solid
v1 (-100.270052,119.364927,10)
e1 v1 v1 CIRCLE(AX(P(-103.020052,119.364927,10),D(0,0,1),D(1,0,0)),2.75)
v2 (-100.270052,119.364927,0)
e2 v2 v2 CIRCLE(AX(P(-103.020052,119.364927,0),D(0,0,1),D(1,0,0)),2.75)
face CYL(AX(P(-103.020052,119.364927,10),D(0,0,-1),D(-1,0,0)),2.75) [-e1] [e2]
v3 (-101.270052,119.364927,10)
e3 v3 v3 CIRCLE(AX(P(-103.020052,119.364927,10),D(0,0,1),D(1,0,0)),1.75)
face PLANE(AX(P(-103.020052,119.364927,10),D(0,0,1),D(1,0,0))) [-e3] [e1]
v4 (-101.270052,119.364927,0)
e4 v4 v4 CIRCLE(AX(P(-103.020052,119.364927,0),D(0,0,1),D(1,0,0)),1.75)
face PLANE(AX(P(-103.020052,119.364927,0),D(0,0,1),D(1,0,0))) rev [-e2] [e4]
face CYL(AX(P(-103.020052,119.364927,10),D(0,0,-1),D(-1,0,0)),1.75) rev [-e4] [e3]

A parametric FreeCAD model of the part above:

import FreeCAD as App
import Part
import Sketcher
Q = App.Units.Quantity

doc = App.newDocument("Part")
body = doc.addObject("PartDesign::Body", "Body")

# Sketch on XY plane
sketch1 = body.newObject("Sketcher::SketchObject", "Sketch")
sketch1.AttachmentSupport = (doc.getObject("XY_Plane"), [""])
sketch1.MapMode = "FlatFace"
sketch1.addGeometry(Part.Circle(App.Vector(-103, 119.4, 0), App.Vector(0, 0, 1), 2.8), False)
sketch1.addGeometry(Part.Circle(App.Vector(-103, 119.4, 0), App.Vector(0, 0, 1), 1.8), False)
sketch1.addConstraint(Sketcher.Constraint("Coincident", 1, 3, 0, 3))
sketch1.addConstraint(Sketcher.Constraint("Diameter", 0, Q("5.5 mm")))
sketch1.addConstraint(Sketcher.Constraint("Diameter", 1, Q("3.5 mm")))
sketch1.addConstraint(Sketcher.Constraint("DistanceX", 0, 3, -1, 1, Q("103.020052 mm")))
sketch1.addConstraint(Sketcher.Constraint("DistanceY", -1, 1, 0, 3, Q("119.364927 mm")))
pad1 = body.newObject("PartDesign::Pad", "Pad")
pad1.Profile = sketch1
pad1.Length = 10

doc.recompute()
